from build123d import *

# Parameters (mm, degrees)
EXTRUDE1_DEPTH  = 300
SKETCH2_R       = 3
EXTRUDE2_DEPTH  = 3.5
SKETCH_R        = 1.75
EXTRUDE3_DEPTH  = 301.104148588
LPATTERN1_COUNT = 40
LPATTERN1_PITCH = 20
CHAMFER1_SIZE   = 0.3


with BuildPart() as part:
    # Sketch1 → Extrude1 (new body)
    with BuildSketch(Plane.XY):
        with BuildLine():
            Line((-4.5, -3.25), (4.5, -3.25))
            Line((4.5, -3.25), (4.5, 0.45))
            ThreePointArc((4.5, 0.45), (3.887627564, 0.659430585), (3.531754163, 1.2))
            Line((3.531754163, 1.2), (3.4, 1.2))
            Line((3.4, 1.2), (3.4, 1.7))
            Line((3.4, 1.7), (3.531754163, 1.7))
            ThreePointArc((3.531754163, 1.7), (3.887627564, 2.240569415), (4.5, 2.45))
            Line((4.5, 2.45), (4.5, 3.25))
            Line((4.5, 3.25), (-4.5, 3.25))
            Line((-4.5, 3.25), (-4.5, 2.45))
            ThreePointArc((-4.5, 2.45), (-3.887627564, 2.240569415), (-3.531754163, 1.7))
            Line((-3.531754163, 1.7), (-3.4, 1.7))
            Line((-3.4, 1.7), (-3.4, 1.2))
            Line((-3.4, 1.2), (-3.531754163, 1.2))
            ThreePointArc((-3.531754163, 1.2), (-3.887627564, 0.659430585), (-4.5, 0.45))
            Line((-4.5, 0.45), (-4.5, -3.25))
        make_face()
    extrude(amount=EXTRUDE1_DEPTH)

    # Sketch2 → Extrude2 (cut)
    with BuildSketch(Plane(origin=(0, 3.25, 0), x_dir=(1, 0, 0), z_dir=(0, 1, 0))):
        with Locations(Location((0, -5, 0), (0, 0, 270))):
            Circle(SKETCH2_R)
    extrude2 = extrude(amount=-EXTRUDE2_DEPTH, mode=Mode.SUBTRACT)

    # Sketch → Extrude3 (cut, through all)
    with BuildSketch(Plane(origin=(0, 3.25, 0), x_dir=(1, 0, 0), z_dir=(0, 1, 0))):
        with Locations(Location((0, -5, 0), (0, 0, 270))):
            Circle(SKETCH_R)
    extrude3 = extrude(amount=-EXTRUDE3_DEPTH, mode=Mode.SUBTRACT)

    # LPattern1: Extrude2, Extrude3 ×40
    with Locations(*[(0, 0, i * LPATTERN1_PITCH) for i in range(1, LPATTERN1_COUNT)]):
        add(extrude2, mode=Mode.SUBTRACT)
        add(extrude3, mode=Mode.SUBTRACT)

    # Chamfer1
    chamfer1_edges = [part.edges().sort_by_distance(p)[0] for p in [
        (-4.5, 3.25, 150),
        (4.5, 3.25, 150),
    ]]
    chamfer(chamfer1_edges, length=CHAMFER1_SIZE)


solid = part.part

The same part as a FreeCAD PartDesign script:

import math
import FreeCAD as App
import Part
import Sketcher

V = App.Vector


def edges_at(feature, points):
    """Names of the edges that pass closest to the given points."""
    edges = feature.Shape.Edges
    near = lambda p: min(range(len(edges)), key=lambda i: edges[i].distToShape(Part.Vertex(*p))[0])
    return sorted({f"Edge{near(p) + 1}" for p in points})

doc = App.newDocument("Part")
params = doc.addObject("Spreadsheet::Sheet", "Params")
for row, (alias, value) in enumerate([
    ("sketch1_radius", "1 mm"),
    ("sketch1_width", "9 mm"),
    ("sketch1_height", "3.7 mm"),
    ("sketch1_height2", "0.5 mm"),
    ("sketch1_height3", "0.8 mm"),
    ("pad1_length", "300 mm"),
    ("sketch2_diameter", "6 mm"),
    ("pocket1_length", "3.5 mm"),
    ("sketch3_diameter", "3.5 mm"),
    ("linearpattern_pitch", "20 mm"),
    ("chamfer_size", "0.3 mm"),
], start=1):
    params.set(f"A{row}", alias)
    params.set(f"B{row}", "=" + value)
    params.setAlias(f"B{row}", alias)

body = doc.addObject("PartDesign::Body", "Body")

# Sketch on XY plane
sketch1 = body.newObject("Sketcher::SketchObject", "Sketch")
sketch1.AttachmentSupport = (doc.getObject("XY_Plane"), [""])
sketch1.MapMode = "FlatFace"
sketch1.addGeometry(Part.LineSegment(V(-4.5, -3.25, 0), V(4.5, -3.25, 0)), False)
sketch1.addGeometry(Part.LineSegment(V(4.5, -3.25, 0), V(4.5, 0.45, 0)), False)
sketch1.addGeometry(Part.ArcOfCircle(Part.Circle(V(4.5, 1.45, 0), V(0, 0, 1), 1), math.radians(-166), math.radians(-90)), False)
sketch1.addGeometry(Part.LineSegment(V(3.53, 1.2, 0), V(3.4, 1.2, 0)), False)
sketch1.addGeometry(Part.LineSegment(V(3.4, 1.2, 0), V(3.4, 1.7, 0)), False)
sketch1.addGeometry(Part.LineSegment(V(3.4, 1.7, 0), V(3.53, 1.7, 0)), False)
sketch1.addGeometry(Part.ArcOfCircle(Part.Circle(V(4.5, 1.45, 0), V(0, 0, 1), 1), math.radians(90), math.radians(166)), False)
sketch1.addGeometry(Part.LineSegment(V(4.5, 2.45, 0), V(4.5, 3.25, 0)), False)
sketch1.addGeometry(Part.LineSegment(V(4.5, 3.25, 0), V(-4.5, 3.25, 0)), False)
sketch1.addGeometry(Part.LineSegment(V(-4.5, 3.25, 0), V(-4.5, 2.45, 0)), False)
sketch1.addGeometry(Part.ArcOfCircle(Part.Circle(V(-4.5, 1.45, 0), V(0, 0, 1), 1), math.radians(14), math.radians(90)), False)
sketch1.addGeometry(Part.LineSegment(V(-3.53, 1.7, 0), V(-3.4, 1.7, 0)), False)
sketch1.addGeometry(Part.LineSegment(V(-3.4, 1.7, 0), V(-3.4, 1.2, 0)), False)
sketch1.addGeometry(Part.LineSegment(V(-3.4, 1.2, 0), V(-3.53, 1.2, 0)), False)
sketch1.addGeometry(Part.ArcOfCircle(Part.Circle(V(-4.5, 1.45, 0), V(0, 0, 1), 1), math.radians(-90), math.radians(-14)), False)
sketch1.addGeometry(Part.LineSegment(V(-4.5, 0.45, 0), V(-4.5, -3.25, 0)), False)
sketch1.addConstraint(Sketcher.Constraint("Coincident", 0, 2, 1, 1))
sketch1.addConstraint(Sketcher.Constraint("Coincident", 1, 2, 2, 2))
sketch1.addConstraint(Sketcher.Constraint("Coincident", 2, 1, 3, 1))
sketch1.addConstraint(Sketcher.Constraint("Coincident", 3, 2, 4, 1))
sketch1.addConstraint(Sketcher.Constraint("Coincident", 4, 2, 5, 1))
sketch1.addConstraint(Sketcher.Constraint("Coincident", 5, 2, 6, 2))
sketch1.addConstraint(Sketcher.Constraint("Coincident", 6, 1, 7, 1))
sketch1.addConstraint(Sketcher.Constraint("Coincident", 7, 2, 8, 1))
sketch1.addConstraint(Sketcher.Constraint("Coincident", 8, 2, 9, 1))
sketch1.addConstraint(Sketcher.Constraint("Coincident", 9, 2, 10, 2))
sketch1.addConstraint(Sketcher.Constraint("Coincident", 10, 1, 11, 1))
sketch1.addConstraint(Sketcher.Constraint("Coincident", 11, 2, 12, 1))
sketch1.addConstraint(Sketcher.Constraint("Coincident", 12, 2, 13, 1))
sketch1.addConstraint(Sketcher.Constraint("Coincident", 13, 2, 14, 2))
sketch1.addConstraint(Sketcher.Constraint("Coincident", 14, 1, 15, 1))
sketch1.addConstraint(Sketcher.Constraint("Coincident", 15, 2, 0, 1))
sketch1.addConstraint(Sketcher.Constraint("Horizontal", 0))
sketch1.addConstraint(Sketcher.Constraint("Vertical", 1))
sketch1.addConstraint(Sketcher.Constraint("Horizontal", 3))
sketch1.addConstraint(Sketcher.Constraint("Vertical", 4))
sketch1.addConstraint(Sketcher.Constraint("Horizontal", 5))
sketch1.addConstraint(Sketcher.Constraint("Vertical", 7))
sketch1.addConstraint(Sketcher.Constraint("Horizontal", 8))
sketch1.addConstraint(Sketcher.Constraint("Vertical", 9))
sketch1.addConstraint(Sketcher.Constraint("Horizontal", 11))
sketch1.addConstraint(Sketcher.Constraint("Vertical", 12))
sketch1.addConstraint(Sketcher.Constraint("Horizontal", 13))
sketch1.addConstraint(Sketcher.Constraint("Vertical", 15))
sketch1.addConstraint(Sketcher.Constraint("Coincident", 6, 3, 2, 3))
sketch1.addConstraint(Sketcher.Constraint("Coincident", 14, 3, 10, 3))
sketch1.addConstraint(Sketcher.Constraint("Equal", 2, 6))
sketch1.addConstraint(Sketcher.Constraint("Equal", 6, 10))
sketch1.addConstraint(Sketcher.Constraint("Equal", 10, 14))
sketch1.addConstraint(Sketcher.Constraint("Symmetric", 0, 2, 8, 2, -1, 1))
sketch1.addConstraint(Sketcher.Constraint("Symmetric", 2, 3, 10, 3, -2))
sketch1.addConstraint(Sketcher.Constraint("Symmetric", 4, 2, 11, 2, -2))
sketch1.addConstraint(Sketcher.Constraint("Horizontal", 3, 2, 12, 2))
sketch1.addConstraint(Sketcher.Constraint("Vertical", 6, 3, 0, 2))
sketch1.addConstraint(Sketcher.Constraint("Vertical", 2, 1, 5, 2))
sketch1.addConstraint(Sketcher.Constraint("Vertical", 1, 2, 6, 1))
sketch1.addConstraint(Sketcher.Constraint("Vertical", 9, 2, 14, 1))
sketch1.addConstraint(Sketcher.Constraint("Radius", 2, 1.0))
sketch1.addConstraint(Sketcher.Constraint("DistanceX", 0, 1, 0, 2, 9.0))
sketch1.addConstraint(Sketcher.Constraint("DistanceY", 1, 1, 1, 2, 3.7))
sketch1.addConstraint(Sketcher.Constraint("DistanceY", 4, 1, 4, 2, 0.5))
sketch1.addConstraint(Sketcher.Constraint("DistanceY", 7, 1, 7, 2, 0.8))
sketch1.addConstraint(Sketcher.Constraint("DistanceX", -1, 1, 3, 2, 3.4))
sketch1.setExpression("Constraints[41]", "Params.sketch1_radius")
sketch1.setExpression("Constraints[42]", "Params.sketch1_width")
sketch1.setExpression("Constraints[43]", "Params.sketch1_height")
sketch1.setExpression("Constraints[44]", "Params.sketch1_height2")
sketch1.setExpression("Constraints[45]", "Params.sketch1_height3")
pad1 = body.newObject("PartDesign::Pad", "Pad")
pad1.Profile = sketch1
pad1.setExpression("Length", "Params.pad1_length")

# Sketch on XZ plane
sketch2 = body.newObject("Sketcher::SketchObject", "Sketch001")
sketch2.AttachmentSupport = (doc.getObject("XZ_Plane"), [""])
sketch2.MapMode = "FlatFace"
sketch2.AttachmentOffset = App.Placement(V(0, 0, -3.25), App.Rotation())
sketch2.addGeometry(Part.Circle(V(0, 5, 0), V(0, 0, 1), 3), False)
sketch2.addConstraint(Sketcher.Constraint("PointOnObject", 0, 3, -2))
sketch2.addConstraint(Sketcher.Constraint("Diameter", 0, 6.0))
sketch2.addConstraint(Sketcher.Constraint("DistanceY", -1, 1, 0, 3, 5.0))
sketch2.setExpression("Constraints[1]", "Params.sketch2_diameter")
pocket1 = body.newObject("PartDesign::Pocket", "Pocket")
pocket1.Profile = sketch2
pocket1.setExpression("Length", "Params.pocket1_length")
pocket1.Reversed = True

# Sketch on XZ plane
sketch3 = body.newObject("Sketcher::SketchObject", "Sketch002")
sketch3.AttachmentSupport = (doc.getObject("XZ_Plane"), [""])
sketch3.MapMode = "FlatFace"
sketch3.AttachmentOffset = App.Placement(V(0, 0, -3.25), App.Rotation())
sketch3.addGeometry(Part.Circle(V(0, 5, 0), V(0, 0, 1), 1.8), False)
sketch3.addConstraint(Sketcher.Constraint("PointOnObject", 0, 3, -2))
sketch3.addConstraint(Sketcher.Constraint("Diameter", 0, 3.5))
sketch3.addConstraint(Sketcher.Constraint("DistanceY", -1, 1, 0, 3, 5.0))
sketch3.setExpression("Constraints[1]", "Params.sketch3_diameter")
pocket2 = body.newObject("PartDesign::Pocket", "Pocket001")
pocket2.Profile = sketch3
pocket2.Type = "ThroughAll"
pocket2.Reversed = True
doc.recompute()

linearpattern = body.newObject("PartDesign::LinearPattern", "LinearPattern")
linearpattern.Originals = [pocket1, pocket2]
linearpattern.Direction = (doc.getObject("Z_Axis"), [""])
linearpattern.Mode = "offset"
linearpattern.setExpression("Offset", "Params.linearpattern_pitch")
linearpattern.Occurrences = 40
body.Tip = linearpattern
doc.recompute()

chamfer = body.newObject("PartDesign::Chamfer", "Chamfer")
chamfer.Base = (linearpattern, edges_at(linearpattern, [(-4.5, 3.25, 150), (4.5, 3.25, 150)]))
chamfer.setExpression("Size", "Params.chamfer_size")

doc.recompute()
